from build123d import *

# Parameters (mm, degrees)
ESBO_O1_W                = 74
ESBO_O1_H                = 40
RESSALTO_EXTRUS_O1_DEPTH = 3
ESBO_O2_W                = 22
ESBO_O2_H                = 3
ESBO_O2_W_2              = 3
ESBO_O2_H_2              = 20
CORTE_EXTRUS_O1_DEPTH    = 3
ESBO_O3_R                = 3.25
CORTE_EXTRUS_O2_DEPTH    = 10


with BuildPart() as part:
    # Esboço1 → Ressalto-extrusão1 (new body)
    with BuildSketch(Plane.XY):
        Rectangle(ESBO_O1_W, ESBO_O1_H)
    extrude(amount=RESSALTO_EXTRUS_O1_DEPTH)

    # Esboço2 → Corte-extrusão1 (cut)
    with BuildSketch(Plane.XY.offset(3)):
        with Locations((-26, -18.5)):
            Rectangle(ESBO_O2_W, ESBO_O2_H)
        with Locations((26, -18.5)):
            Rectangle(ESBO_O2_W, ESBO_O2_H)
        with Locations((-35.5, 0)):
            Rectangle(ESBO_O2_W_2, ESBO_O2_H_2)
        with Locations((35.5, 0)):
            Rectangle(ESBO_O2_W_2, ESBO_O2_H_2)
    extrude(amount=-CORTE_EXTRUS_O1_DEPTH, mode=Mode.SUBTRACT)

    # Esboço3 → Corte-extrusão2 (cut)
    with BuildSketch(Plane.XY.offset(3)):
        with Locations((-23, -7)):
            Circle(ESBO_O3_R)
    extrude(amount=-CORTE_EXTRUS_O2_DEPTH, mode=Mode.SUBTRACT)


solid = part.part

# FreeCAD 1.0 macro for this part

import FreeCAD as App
import Part
import Sketcher

V = App.Vector
Q = App.Units.Quantity


def add_polygon(sketch, points):
    """Adds a closed chain of lines whose ends are joined by coincident constraints."""
    first, n = sketch.GeometryCount, len(points)
    for a, b in zip(points, points[1:] + points[:1]):
        sketch.addGeometry(Part.LineSegment(App.Vector(*a, 0), App.Vector(*b, 0)), False)
    for i in range(n):
        sketch.addConstraint(Sketcher.Constraint("Coincident", first + i, 2, first + (i + 1) % n, 1))

doc = App.newDocument("Part")
body = doc.addObject("PartDesign::Body", "Body")

sketch1 = body.newObject("Sketcher::SketchObject", "Sketch")
sketch1.AttachmentSupport = (doc.getObject("XY_Plane"), [""])
sketch1.MapMode = "FlatFace"
add_polygon(sketch1, [(-37, 20), (-37, -20), (37, -20), (37, 20)])
sketch1.addConstraint(Sketcher.Constraint("Vertical", 0))
sketch1.addConstraint(Sketcher.Constraint("Horizontal", 1))
sketch1.addConstraint(Sketcher.Constraint("Vertical", 2))
sketch1.addConstraint(Sketcher.Constraint("Horizontal", 3))
sketch1.addConstraint(Sketcher.Constraint("Symmetric", 0, 2, 2, 2, -1, 1))
sketch1.addConstraint(Sketcher.Constraint("DistanceX", 1, 1, 1, 2, Q("74 mm")))
sketch1.addConstraint(Sketcher.Constraint("DistanceY", 0, 2, 0, 1, Q("40 mm")))
pad1 = body.newObject("PartDesign::Pad", "Pad")
pad1.Profile = sketch1
pad1.Length = 3

sketch2 = body.newObject("Sketcher::SketchObject", "Sketch001")
sketch2.AttachmentSupport = (doc.getObject("XY_Plane"), [""])
sketch2.MapMode = "FlatFace"
sketch2.AttachmentOffset = App.Placement(V(0, 0, 3), App.Rotation())
add_polygon(sketch2, [(-37, -17), (-37, -20), (-15, -20), (-15, -17)])
add_polygon(sketch2, [(15, -17), (15, -20), (37, -20), (37, -17)])
add_polygon(sketch2, [(-37, 10), (-37, -10), (-34, -10), (-34, 10)])
add_polygon(sketch2, [(34, 10), (34, -10), (37, -10), (37, 10)])
sketch2.addConstraint(Sketcher.Constraint("Vertical", 0))
sketch2.addConstraint(Sketcher.Constraint("Horizontal", 1))
sketch2.addConstraint(Sketcher.Constraint("Vertical", 2))
sketch2.addConstraint(Sketcher.Constraint("Horizontal", 3))
sketch2.addConstraint(Sketcher.Constraint("Vertical", 4))
sketch2.addConstraint(Sketcher.Constraint("Horizontal", 5))
sketch2.addConstraint(Sketcher.Constraint("Vertical", 6))
sketch2.addConstraint(Sketcher.Constraint("Horizontal", 7))
sketch2.addConstraint(Sketcher.Constraint("Vertical", 8))
sketch2.addConstraint(Sketcher.Constraint("Horizontal", 9))
sketch2.addConstraint(Sketcher.Constraint("Vertical", 10))
sketch2.addConstraint(Sketcher.Constraint("Horizontal", 11))
sketch2.addConstraint(Sketcher.Constraint("Vertical", 12))
sketch2.addConstraint(Sketcher.Constraint("Horizontal", 13))
sketch2.addConstraint(Sketcher.Constraint("Vertical", 14))
sketch2.addConstraint(Sketcher.Constraint("Horizontal", 15))
sketch2.addConstraint(Sketcher.Constraint("Symmetric", 10, 2, 12, 2, -1, 1))
sketch2.addConstraint(Sketcher.Constraint("Symmetric", 8, 2, 14, 2, -1, 1))
sketch2.addConstraint(Sketcher.Constraint("Symmetric", 1, 2, 4, 2, -2))
sketch2.addConstraint(Sketcher.Constraint("Symmetric", 3, 2, 6, 2, -2))
sketch2.addConstraint(Sketcher.Constraint("Horizontal", 9, 2, 12, 2))
sketch2.addConstraint(Sketcher.Constraint("Vertical", 3, 2, 8, 2))
sketch2.addConstraint(Sketcher.Constraint("Equal", 15, 0))
sketch2.addConstraint(Sketcher.Constraint("DistanceX", 1, 1, 1, 2, Q("22 mm")))
sketch2.addConstraint(Sketcher.Constraint("DistanceX", 9, 1, 9, 2, Q("3 mm")))
sketch2.addConstraint(Sketcher.Constraint("DistanceY", 8, 2, 8, 1, Q("20 mm")))
sketch2.addConstraint(Sketcher.Constraint("DistanceX", 0, 2, -1, 1, Q("37 mm")))
sketch2.addConstraint(Sketcher.Constraint("DistanceY", 0, 2, -1, 1, Q("20 mm")))
pocket1 = body.newObject("PartDesign::Pocket", "Pocket")
pocket1.Profile = sketch2
pocket1.Length = 3

sketch3 = body.newObject("Sketcher::SketchObject", "Sketch002")
sketch3.AttachmentSupport = (doc.getObject("XY_Plane"), [""])
sketch3.MapMode = "FlatFace"
sketch3.AttachmentOffset = App.Placement(V(0, 0, 3), App.Rotation())
sketch3.addGeometry(Part.Circle(V(-23, -7, 0), V(0, 0, 1), 3.2), False)
sketch3.addConstraint(Sketcher.Constraint("Diameter", 0, Q("6.5 mm")))
sketch3.addConstraint(Sketcher.Constraint("DistanceX", 0, 3, -1, 1, Q("23 mm")))
sketch3.addConstraint(Sketcher.Constraint("DistanceY", 0, 3, -1, 1, Q("7 mm")))
pocket2 = body.newObject("PartDesign::Pocket", "Pocket001")
pocket2.Profile = sketch3
pocket2.Length = 10

doc.recompute()
